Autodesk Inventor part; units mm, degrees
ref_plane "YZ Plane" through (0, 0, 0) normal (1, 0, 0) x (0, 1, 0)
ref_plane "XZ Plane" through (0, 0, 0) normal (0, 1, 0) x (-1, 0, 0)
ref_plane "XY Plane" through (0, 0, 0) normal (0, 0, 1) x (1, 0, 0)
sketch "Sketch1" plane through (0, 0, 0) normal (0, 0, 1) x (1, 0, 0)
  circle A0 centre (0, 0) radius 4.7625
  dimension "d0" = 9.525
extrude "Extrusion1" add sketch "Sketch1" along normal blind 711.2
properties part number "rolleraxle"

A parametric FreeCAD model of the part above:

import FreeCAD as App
import Part
import Sketcher
Q = App.Units.Quantity

doc = App.newDocument("Part")
body = doc.addObject("PartDesign::Body", "Body")

# Sketch on XY plane
sketch1 = doc.addObject("Sketcher::SketchObject", "Sketch")
body.addObject(sketch1)
sketch1.AttachmentSupport = (doc.XY_Plane, [""])
sketch1.MapMode = "FlatFace"
sketch1.addGeometry(Part.Circle(App.Vector(0, 0, 0), App.Vector(0, 0, 1), 4.8), False)
sketch1.addConstraint(Sketcher.Constraint("Coincident", 0, 3, -1, 1))
sketch1.addConstraint(Sketcher.Constraint("Diameter", 0, Q("0.375 in")))
pad1 = doc.addObject("PartDesign::Pad", "Pad")
body.addObject(pad1)
pad1.Profile = sketch1
pad1.Length = Q("28 in")

doc.recompute()
